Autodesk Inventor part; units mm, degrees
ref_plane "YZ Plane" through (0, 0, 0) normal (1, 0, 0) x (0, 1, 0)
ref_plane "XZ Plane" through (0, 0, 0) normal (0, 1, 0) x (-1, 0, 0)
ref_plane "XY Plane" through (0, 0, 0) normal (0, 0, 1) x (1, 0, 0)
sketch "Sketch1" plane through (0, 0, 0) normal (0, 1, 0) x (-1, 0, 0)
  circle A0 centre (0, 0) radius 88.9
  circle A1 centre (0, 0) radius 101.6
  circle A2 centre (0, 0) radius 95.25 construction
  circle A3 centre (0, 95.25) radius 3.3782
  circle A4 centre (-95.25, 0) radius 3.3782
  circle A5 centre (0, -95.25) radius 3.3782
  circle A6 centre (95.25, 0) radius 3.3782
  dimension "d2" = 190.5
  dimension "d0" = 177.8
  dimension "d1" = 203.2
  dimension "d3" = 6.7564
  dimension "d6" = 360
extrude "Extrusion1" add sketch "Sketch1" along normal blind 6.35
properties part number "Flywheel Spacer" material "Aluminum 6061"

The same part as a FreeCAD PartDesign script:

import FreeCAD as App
import Part
import Sketcher
Q = App.Units.Quantity

doc = App.newDocument("Part")
body = doc.addObject("PartDesign::Body", "Body")

sketch1 = body.newObject("Sketcher::SketchObject", "Sketch")
sketch1.AttachmentSupport = (doc.getObject("XZ_Plane"), [""])
sketch1.MapMode = "FlatFace"
sketch1.addGeometry(Part.Circle(App.Vector(0, 0, 0), App.Vector(0, 0, 1), 101.6), False)
sketch1.addGeometry(Part.Circle(App.Vector(0, -95.25, 0), App.Vector(0, 0, 1), 3.3782), False)
sketch1.addGeometry(Part.Circle(App.Vector(95.25, 0, 0), App.Vector(0, 0, 1), 3.3782), False)
sketch1.addGeometry(Part.Circle(App.Vector(0, 0, 0), App.Vector(0, 0, 1), 88.9), False)
sketch1.addGeometry(Part.Circle(App.Vector(-95.25, 0, 0), App.Vector(0, 0, 1), 3.3782), False)
sketch1.addGeometry(Part.Circle(App.Vector(0, 95.25, 0), App.Vector(0, 0, 1), 3.3782), False)
sketch1.addConstraint(Sketcher.Constraint("Coincident", 0, 3, -1, 1))
sketch1.addConstraint(Sketcher.Constraint("Coincident", 3, 3, -1, 1))
sketch1.addConstraint(Sketcher.Constraint("Equal", 1, 2))
sketch1.addConstraint(Sketcher.Constraint("Equal", 2, 4))
sketch1.addConstraint(Sketcher.Constraint("Equal", 4, 5))
sketch1.addConstraint(Sketcher.Constraint("Symmetric", 2, 3, 4, 3, -1, 1))
sketch1.addConstraint(Sketcher.Constraint("Symmetric", 1, 3, 5, 3, -1, 1))
sketch1.addConstraint(Sketcher.Constraint("PointOnObject", 1, 3, -2))
sketch1.addConstraint(Sketcher.Constraint("PointOnObject", 2, 3, -1))
sketch1.addConstraint(Sketcher.Constraint("Diameter", 0, Q("8 in")))
sketch1.addConstraint(Sketcher.Constraint("Diameter", 3, Q("7 in")))
sketch1.addConstraint(Sketcher.Constraint("Diameter", 1, Q("0.266 in")))
sketch1.addConstraint(Sketcher.Constraint("DistanceX", 4, 3, 2, 3, Q("7.5 in")))
sketch1.addConstraint(Sketcher.Constraint("DistanceY", 1, 3, 5, 3, Q("7.5 in")))
pad1 = body.newObject("PartDesign::Pad", "Pad")
pad1.Profile = sketch1
pad1.Length = Q("0.25 in")
pad1.Reversed = True

doc.recompute()
